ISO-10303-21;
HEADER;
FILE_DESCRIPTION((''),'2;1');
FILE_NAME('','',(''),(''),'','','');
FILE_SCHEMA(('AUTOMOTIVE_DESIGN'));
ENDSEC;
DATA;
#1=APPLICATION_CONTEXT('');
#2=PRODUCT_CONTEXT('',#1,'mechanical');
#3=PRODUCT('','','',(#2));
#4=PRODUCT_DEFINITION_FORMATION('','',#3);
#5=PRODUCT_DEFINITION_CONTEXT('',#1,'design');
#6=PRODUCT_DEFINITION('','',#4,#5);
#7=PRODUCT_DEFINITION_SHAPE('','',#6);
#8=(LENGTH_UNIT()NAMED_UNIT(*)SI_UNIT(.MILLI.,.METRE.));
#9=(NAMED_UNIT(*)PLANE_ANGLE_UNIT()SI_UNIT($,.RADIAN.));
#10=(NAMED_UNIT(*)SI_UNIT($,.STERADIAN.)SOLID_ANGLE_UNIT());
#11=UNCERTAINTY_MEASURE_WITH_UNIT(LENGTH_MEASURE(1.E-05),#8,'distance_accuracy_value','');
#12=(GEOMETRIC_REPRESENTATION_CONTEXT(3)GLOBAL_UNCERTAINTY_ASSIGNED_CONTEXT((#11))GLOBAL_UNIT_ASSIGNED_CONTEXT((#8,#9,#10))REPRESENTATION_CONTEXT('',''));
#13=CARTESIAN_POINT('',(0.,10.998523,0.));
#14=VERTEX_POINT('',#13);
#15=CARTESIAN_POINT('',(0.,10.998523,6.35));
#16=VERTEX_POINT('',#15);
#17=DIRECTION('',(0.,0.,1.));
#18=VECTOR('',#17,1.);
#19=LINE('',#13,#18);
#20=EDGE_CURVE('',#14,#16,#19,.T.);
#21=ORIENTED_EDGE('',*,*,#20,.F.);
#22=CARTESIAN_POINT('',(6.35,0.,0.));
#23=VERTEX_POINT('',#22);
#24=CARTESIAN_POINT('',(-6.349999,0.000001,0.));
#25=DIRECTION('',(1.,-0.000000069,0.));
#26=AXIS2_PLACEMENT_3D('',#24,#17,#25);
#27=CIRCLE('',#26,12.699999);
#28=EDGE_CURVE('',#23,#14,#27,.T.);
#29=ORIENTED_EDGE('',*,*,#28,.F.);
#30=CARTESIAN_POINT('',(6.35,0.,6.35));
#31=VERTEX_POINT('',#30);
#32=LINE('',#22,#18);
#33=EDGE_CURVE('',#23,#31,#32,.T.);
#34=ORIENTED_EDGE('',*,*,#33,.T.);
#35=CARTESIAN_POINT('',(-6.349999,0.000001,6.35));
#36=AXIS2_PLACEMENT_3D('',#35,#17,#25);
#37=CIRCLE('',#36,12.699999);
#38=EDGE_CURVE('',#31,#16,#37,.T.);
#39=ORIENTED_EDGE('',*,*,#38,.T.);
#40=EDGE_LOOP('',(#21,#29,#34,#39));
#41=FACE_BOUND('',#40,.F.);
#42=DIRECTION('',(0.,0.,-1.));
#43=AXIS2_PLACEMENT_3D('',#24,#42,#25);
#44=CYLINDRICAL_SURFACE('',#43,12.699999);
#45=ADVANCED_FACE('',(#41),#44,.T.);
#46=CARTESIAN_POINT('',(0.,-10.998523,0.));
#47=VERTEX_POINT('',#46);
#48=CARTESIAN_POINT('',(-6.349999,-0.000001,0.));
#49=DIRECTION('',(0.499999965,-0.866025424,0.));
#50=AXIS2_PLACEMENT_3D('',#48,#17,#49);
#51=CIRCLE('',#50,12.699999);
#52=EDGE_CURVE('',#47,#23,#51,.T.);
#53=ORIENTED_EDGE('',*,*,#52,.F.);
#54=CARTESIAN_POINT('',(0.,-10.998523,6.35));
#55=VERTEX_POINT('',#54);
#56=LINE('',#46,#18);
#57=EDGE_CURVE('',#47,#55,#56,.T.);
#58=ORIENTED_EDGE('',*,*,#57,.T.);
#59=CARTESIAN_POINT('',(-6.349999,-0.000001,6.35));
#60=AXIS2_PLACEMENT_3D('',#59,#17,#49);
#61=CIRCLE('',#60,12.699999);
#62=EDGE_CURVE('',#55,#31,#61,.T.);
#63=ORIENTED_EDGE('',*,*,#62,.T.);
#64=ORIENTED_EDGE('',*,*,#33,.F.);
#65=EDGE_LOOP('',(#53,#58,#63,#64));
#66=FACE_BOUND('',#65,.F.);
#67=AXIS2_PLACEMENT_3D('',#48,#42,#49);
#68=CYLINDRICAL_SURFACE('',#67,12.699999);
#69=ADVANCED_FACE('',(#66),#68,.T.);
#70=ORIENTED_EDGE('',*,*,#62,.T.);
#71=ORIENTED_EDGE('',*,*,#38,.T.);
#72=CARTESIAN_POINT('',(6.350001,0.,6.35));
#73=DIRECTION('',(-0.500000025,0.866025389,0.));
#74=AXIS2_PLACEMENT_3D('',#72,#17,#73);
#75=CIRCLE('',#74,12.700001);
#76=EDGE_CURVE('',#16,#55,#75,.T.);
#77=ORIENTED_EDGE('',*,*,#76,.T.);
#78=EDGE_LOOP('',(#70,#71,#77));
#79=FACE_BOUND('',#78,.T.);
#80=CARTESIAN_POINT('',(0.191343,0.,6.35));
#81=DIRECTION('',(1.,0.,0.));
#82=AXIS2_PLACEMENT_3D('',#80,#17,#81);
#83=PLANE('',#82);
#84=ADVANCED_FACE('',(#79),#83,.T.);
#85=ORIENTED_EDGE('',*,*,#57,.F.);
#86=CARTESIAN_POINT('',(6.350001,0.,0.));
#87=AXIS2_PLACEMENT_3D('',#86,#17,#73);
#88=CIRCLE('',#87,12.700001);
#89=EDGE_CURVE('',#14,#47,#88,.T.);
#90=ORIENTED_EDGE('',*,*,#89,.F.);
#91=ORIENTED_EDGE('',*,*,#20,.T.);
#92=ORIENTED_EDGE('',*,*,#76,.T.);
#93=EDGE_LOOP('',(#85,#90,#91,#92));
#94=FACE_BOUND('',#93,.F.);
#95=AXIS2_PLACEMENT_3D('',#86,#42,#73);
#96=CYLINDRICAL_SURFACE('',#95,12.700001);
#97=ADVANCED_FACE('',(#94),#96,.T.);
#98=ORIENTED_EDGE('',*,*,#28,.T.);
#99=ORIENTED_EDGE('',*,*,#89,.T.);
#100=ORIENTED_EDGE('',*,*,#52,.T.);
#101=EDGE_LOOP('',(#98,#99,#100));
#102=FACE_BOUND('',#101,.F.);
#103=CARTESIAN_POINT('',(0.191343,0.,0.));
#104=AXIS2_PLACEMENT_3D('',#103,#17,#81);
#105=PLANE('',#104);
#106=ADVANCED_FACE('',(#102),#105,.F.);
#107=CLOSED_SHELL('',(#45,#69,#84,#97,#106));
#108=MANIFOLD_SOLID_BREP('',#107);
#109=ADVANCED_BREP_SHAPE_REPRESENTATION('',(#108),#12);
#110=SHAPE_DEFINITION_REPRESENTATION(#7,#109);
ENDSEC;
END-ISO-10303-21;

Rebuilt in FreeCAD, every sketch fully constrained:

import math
import FreeCAD as App
import Part
import Sketcher
from FreeCAD import Vector
Q = App.Units.Quantity

doc = App.newDocument("Part")
body = doc.addObject("PartDesign::Body", "Body")

# Sketch on XY plane
sketch1 = body.newObject("Sketcher::SketchObject", "Sketch")
sketch1.AttachmentSupport = (doc.getObject("XY_Plane"), [""])
sketch1.MapMode = "FlatFace"
sketch1.addGeometry([
    Part.ArcOfCircle(Part.Circle(Vector(-6.349999, -0.000001, 0), Vector(0, 0, 1), 12.699999), math.radians(-60.000002), math.radians(0.000004)),
    Part.ArcOfCircle(Part.Circle(Vector(-6.349999, 0.000001, 0), Vector(0, 0, 1), 12.699999), math.radians(-0.000004), math.radians(60.000002)),
    Part.ArcOfCircle(Part.Circle(Vector(6.350001, 0, 0), Vector(0, 0, 1), 12.700001), math.radians(120.000002), math.radians(239.999998)),
], False)
sketch1.addConstraint([
    Sketcher.Constraint("Tangent", 0, 2, 1, 1),
    Sketcher.Constraint("Coincident", 1, 2, 2, 1),
    Sketcher.Constraint("Coincident", 2, 2, 0, 1),
    Sketcher.Constraint("Coincident", 0, 2, 2, 3),
    Sketcher.Constraint("Equal", 0, 1),
    Sketcher.Constraint("Equal", 1, 2),
    Sketcher.Constraint("Symmetric", 0, 3, 2, 3, -1, 1),
    Sketcher.Constraint("PointOnObject", 0, 3, -1),
    Sketcher.Constraint("Radius", 0, Q("0.5 in")),
])
pad1 = body.newObject("PartDesign::Pad", "Pad")
pad1.Profile = sketch1
pad1.Length = Q("0.25 in")

doc.recompute()
